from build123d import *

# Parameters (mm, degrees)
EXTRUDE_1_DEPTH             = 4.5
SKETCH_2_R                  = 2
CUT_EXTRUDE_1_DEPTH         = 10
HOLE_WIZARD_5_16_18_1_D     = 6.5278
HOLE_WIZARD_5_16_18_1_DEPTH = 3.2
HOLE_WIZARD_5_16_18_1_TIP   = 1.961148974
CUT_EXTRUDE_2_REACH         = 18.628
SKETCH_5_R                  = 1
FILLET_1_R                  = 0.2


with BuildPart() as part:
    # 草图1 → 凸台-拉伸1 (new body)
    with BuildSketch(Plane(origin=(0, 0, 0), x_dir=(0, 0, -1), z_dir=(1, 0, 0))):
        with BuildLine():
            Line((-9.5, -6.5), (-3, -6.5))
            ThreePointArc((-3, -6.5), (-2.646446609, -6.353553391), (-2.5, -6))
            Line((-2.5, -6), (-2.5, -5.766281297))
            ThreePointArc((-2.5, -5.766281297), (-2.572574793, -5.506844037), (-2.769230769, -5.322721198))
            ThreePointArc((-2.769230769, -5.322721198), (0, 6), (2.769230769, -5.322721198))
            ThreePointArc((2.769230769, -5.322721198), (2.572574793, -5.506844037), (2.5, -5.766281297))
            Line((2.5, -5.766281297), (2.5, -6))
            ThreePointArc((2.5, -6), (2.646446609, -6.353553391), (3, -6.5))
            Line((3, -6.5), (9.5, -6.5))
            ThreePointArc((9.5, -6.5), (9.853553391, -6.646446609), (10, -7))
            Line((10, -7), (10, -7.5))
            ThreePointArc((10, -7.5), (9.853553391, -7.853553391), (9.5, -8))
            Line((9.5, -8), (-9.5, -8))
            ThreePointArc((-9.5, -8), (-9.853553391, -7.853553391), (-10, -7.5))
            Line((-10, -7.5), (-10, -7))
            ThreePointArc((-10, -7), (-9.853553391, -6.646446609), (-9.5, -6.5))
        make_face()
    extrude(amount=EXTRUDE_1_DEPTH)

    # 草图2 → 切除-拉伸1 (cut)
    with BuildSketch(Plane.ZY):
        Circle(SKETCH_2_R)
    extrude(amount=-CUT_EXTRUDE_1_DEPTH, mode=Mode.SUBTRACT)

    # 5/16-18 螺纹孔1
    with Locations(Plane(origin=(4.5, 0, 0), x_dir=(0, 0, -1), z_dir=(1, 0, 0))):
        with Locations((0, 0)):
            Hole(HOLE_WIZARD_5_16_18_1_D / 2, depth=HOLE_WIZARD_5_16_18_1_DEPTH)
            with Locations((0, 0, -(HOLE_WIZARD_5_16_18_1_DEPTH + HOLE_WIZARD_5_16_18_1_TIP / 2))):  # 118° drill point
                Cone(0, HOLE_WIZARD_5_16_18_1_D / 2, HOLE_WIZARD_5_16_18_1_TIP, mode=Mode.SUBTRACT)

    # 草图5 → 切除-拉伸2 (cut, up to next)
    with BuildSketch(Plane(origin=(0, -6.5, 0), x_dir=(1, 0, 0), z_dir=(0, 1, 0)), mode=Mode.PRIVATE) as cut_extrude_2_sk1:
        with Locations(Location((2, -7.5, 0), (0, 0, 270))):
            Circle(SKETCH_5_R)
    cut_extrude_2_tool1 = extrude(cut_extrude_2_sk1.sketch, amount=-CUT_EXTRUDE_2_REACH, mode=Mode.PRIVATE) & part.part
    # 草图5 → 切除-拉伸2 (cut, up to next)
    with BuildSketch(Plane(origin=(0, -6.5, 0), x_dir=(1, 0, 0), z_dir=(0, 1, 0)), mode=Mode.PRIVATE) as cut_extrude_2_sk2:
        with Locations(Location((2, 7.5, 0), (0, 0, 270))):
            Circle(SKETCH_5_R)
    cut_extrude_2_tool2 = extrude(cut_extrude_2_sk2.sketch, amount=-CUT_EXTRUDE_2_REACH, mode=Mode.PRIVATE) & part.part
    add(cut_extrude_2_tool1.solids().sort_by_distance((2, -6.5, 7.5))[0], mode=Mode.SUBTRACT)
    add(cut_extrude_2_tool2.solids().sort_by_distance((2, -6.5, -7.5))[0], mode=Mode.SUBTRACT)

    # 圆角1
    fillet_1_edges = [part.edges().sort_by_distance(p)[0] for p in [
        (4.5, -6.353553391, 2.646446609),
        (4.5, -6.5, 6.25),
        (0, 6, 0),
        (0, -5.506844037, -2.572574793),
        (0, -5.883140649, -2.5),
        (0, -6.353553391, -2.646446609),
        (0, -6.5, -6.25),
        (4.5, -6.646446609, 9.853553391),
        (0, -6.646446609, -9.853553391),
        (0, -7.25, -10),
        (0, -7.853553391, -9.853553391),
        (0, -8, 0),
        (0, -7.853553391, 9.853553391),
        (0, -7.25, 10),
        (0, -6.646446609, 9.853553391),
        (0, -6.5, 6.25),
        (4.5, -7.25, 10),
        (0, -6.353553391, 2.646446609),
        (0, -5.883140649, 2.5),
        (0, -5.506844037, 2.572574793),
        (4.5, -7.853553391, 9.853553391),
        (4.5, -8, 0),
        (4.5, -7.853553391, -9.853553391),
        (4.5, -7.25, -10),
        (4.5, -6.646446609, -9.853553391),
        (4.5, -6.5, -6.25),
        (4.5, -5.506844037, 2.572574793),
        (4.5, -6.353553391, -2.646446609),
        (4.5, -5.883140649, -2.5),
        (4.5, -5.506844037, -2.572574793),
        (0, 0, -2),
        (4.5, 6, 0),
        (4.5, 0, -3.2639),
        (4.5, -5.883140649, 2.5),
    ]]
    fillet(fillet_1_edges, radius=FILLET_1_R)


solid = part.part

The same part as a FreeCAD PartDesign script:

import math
import FreeCAD as App
import Part
import Sketcher
Q = App.Units.Quantity


def edges_at(feature, points):
    """Names of the edges that pass closest to the given points."""
    edges = feature.Shape.Edges
    near = lambda p: min(range(len(edges)), key=lambda i: edges[i].distToShape(Part.Vertex(*p))[0])
    return sorted({f"Edge{near(p) + 1}" for p in points})

doc = App.newDocument("Part")
params = doc.addObject("Spreadsheet::Sheet", "Params")
for row, (alias, value) in enumerate([
    ("sketch1_radius", "6 mm"),
    ("sketch1_radius2", "0.5 mm"),
    ("sketch1_height", "19 mm"),
    ("sketch1_width", "0.5 mm"),
    ("sketch1_height2", "6.5 mm"),
    ("pad1_length", "4.5 mm"),
    ("sketch2_diameter", "4 mm"),
    ("pocket1_length", "10 mm"),
    ("hole_diameter", "6.5278 mm"),
    ("hole_depth", "3.2 mm"),
    ("sketch4_diameter", "2 mm"),
    ("sketch5_diameter", "2 mm"),
    ("fillet_radius", "0.2 mm"),
], start=1):
    params.set(f"A{row}", alias)
    params.set(f"B{row}", "=" + value)
    params.setAlias(f"B{row}", alias)

body = doc.addObject("PartDesign::Body", "Body")

sketch1 = doc.addObject("Sketcher::SketchObject", "Sketch")
body.addObject(sketch1)
sketch1.AttachmentSupport = (doc.YZ_Plane, [""])
sketch1.MapMode = "FlatFace"
sketch1.addGeometry([
    Part.LineSegment(App.Vector(-6.5, 3, 0), App.Vector(-6.5, 9.5, 0)),
    Part.ArcOfCircle(Part.Circle(App.Vector(-7, 9.5, 0), App.Vector(0, 0, 1), 0.5), math.radians(0), math.radians(90)),
    Part.LineSegment(App.Vector(-7, 10, 0), App.Vector(-7.5, 10, 0)),
    Part.ArcOfCircle(Part.Circle(App.Vector(-7.5, 9.5, 0), App.Vector(0, 0, 1), 0.5), math.radians(90), math.radians(180)),
    Part.LineSegment(App.Vector(-8, 9.5, 0), App.Vector(-8, -9.5, 0)),
    Part.ArcOfCircle(Part.Circle(App.Vector(-7.5, -9.5, 0), App.Vector(0, 0, 1), 0.5), math.radians(180), math.radians(270)),
    Part.LineSegment(App.Vector(-7.5, -10, 0), App.Vector(-7, -10, 0)),
    Part.ArcOfCircle(Part.Circle(App.Vector(-7, -9.5, 0), App.Vector(0, 0, 1), 0.5), math.radians(-90), math.radians(0)),
    Part.LineSegment(App.Vector(-6.5, -9.5, 0), App.Vector(-6.5, -3, 0)),
    Part.ArcOfCircle(Part.Circle(App.Vector(-6, -3, 0), App.Vector(0, 0, 1), 0.5), math.radians(90), math.radians(180)),
    Part.LineSegment(App.Vector(-6, -2.5, 0), App.Vector(-5.766281, -2.5, 0)),
    Part.ArcOfCircle(Part.Circle(App.Vector(-5.766281, -3, 0), App.Vector(0, 0, 1), 0.5), math.radians(27.486426), math.radians(90)),
    Part.ArcOfCircle(Part.Circle(App.Vector(0, 0, 0), App.Vector(0, 0, 1), 6), math.radians(-152.513574), math.radians(152.513574)),
    Part.ArcOfCircle(Part.Circle(App.Vector(-5.766281, 3, 0), App.Vector(0, 0, 1), 0.5), math.radians(-90), math.radians(-27.486426)),
    Part.LineSegment(App.Vector(-5.766281, 2.5, 0), App.Vector(-6, 2.5, 0)),
    Part.ArcOfCircle(Part.Circle(App.Vector(-6, 3, 0), App.Vector(0, 0, 1), 0.5), math.radians(180), math.radians(270)),
], False)
sketch1.addConstraint([
    Sketcher.Constraint("Tangent", 0, 2, 1, 1),
    Sketcher.Constraint("Tangent", 1, 2, 2, 1),
    Sketcher.Constraint("Tangent", 2, 2, 3, 1),
    Sketcher.Constraint("Tangent", 3, 2, 4, 1),
    Sketcher.Constraint("Tangent", 4, 2, 5, 1),
    Sketcher.Constraint("Tangent", 5, 2, 6, 1),
    Sketcher.Constraint("Tangent", 6, 2, 7, 1),
    Sketcher.Constraint("Tangent", 7, 2, 8, 1),
    Sketcher.Constraint("Tangent", 8, 2, 9, 2),
    Sketcher.Constraint("Tangent", 9, 1, 10, 1),
    Sketcher.Constraint("Tangent", 10, 2, 11, 2),
    Sketcher.Constraint("Tangent", 11, 1, 12, 1),
    Sketcher.Constraint("Tangent", 12, 2, 13, 2),
    Sketcher.Constraint("Tangent", 13, 1, 14, 1),
    Sketcher.Constraint("Tangent", 14, 2, 15, 2),
    Sketcher.Constraint("Tangent", 15, 1, 0, 1),
    Sketcher.Constraint("Vertical", 0),
    Sketcher.Constraint("Horizontal", 2),
    Sketcher.Constraint("Vertical", 4),
    Sketcher.Constraint("Horizontal", 6),
    Sketcher.Constraint("Vertical", 8),
    Sketcher.Constraint("Horizontal", 10),
    Sketcher.Constraint("Horizontal", 14),
    Sketcher.Constraint("Coincident", 12, 3, -1, 1),
    Sketcher.Constraint("Equal", 1, 3),
    Sketcher.Constraint("Equal", 3, 5),
    Sketcher.Constraint("Equal", 5, 7),
    Sketcher.Constraint("Equal", 7, 9),
    Sketcher.Constraint("Equal", 9, 11),
    Sketcher.Constraint("Equal", 11, 13),
    Sketcher.Constraint("Equal", 13, 15),
    Sketcher.Constraint("Symmetric", 1, 3, 7, 3, -1),
    Sketcher.Constraint("Vertical", 11, 3, 13, 3),
    Sketcher.Constraint("Radius", 12, Q("6 mm")),
    Sketcher.Constraint("Radius", 1, Q("0.5 mm")),
    Sketcher.Constraint("DistanceY", 4, 2, 4, 1, Q("19 mm")),
    Sketcher.Constraint("DistanceX", 2, 2, 2, 1, Q("0.5 mm")),
    Sketcher.Constraint("DistanceY", 0, 1, 0, 2, Q("6.5 mm")),
    Sketcher.Constraint("DistanceX", 1, 3, -1, 1, Q("7 mm")),
])
sketch1.setExpression("Constraints[33]", "Params.sketch1_radius")
sketch1.setExpression("Constraints[34]", "Params.sketch1_radius2")
sketch1.setExpression("Constraints[35]", "Params.sketch1_height")
sketch1.setExpression("Constraints[36]", "Params.sketch1_width")
sketch1.setExpression("Constraints[37]", "Params.sketch1_height2")
pad1 = doc.addObject("PartDesign::Pad", "Pad")
body.addObject(pad1)
pad1.Profile = sketch1
pad1.setExpression("Length", "Params.pad1_length")

sketch2 = doc.addObject("Sketcher::SketchObject", "Sketch001")
body.addObject(sketch2)
sketch2.AttachmentSupport = (doc.YZ_Plane, [""])
sketch2.MapMode = "FlatFace"
sketch2.addGeometry(Part.Circle(App.Vector(0, 0, 0), App.Vector(0, 0, 1), 2), False)
sketch2.addConstraint([
    Sketcher.Constraint("Coincident", 0, 3, -1, 1),
    Sketcher.Constraint("Diameter", 0, Q("4 mm")),
])
sketch2.setExpression("Constraints[1]", "Params.sketch2_diameter")
pocket1 = doc.addObject("PartDesign::Pocket", "Pocket")
body.addObject(pocket1)
pocket1.Profile = sketch2
pocket1.setExpression("Length", "Params.pocket1_length")
pocket1.Reversed = True

sketch3 = doc.addObject("Sketcher::SketchObject", "Sketch002")
body.addObject(sketch3)
sketch3.AttachmentSupport = (doc.YZ_Plane, [""])
sketch3.MapMode = "FlatFace"
sketch3.AttachmentOffset = App.Placement(App.Vector(0, 0, 4.5), App.Rotation())
sketch3.addGeometry(Part.Circle(App.Vector(0, 0, 0), App.Vector(0, 0, 1), 3.2639), False)
sketch3.addConstraint([
    Sketcher.Constraint("Coincident", 0, 3, -1, 1),
    Sketcher.Constraint("Diameter", 0, Q("6.5278 mm")),
])
doc.recompute()
hole = doc.addObject("PartDesign::Hole", "Hole")
body.addObject(hole)
hole.Profile = sketch3
hole.ThreadType = "None"
hole.setExpression("Diameter", "Params.hole_diameter")
hole.DepthType = "Dimension"
hole.setExpression("Depth", "Params.hole_depth")
hole.DrillPoint = "Angled"
hole.DrillPointAngle = 118

sketch4 = doc.addObject("Sketcher::SketchObject", "Sketch003")
body.addObject(sketch4)
sketch4.AttachmentSupport = (doc.XZ_Plane, [""])
sketch4.MapMode = "FlatFace"
sketch4.AttachmentOffset = App.Placement(App.Vector(0, 0, 6.5), App.Rotation())
sketch4.addGeometry(Part.Circle(App.Vector(2, 7.5, 0), App.Vector(0, 0, 1), 1), False)
sketch4.addConstraint([
    Sketcher.Constraint("Diameter", 0, Q("2 mm")),
    Sketcher.Constraint("DistanceX", -1, 1, 0, 3, Q("2 mm")),
    Sketcher.Constraint("DistanceY", -1, 1, 0, 3, Q("7.5 mm")),
])
sketch4.setExpression("Constraints[0]", "Params.sketch4_diameter")
pocket2 = doc.addObject("PartDesign::Pocket", "Pocket001")
body.addObject(pocket2)
pocket2.Profile = sketch4
pocket2.Type = "UpToFirst"
pocket2.Reversed = True

sketch5 = doc.addObject("Sketcher::SketchObject", "Sketch004")
body.addObject(sketch5)
sketch5.AttachmentSupport = (doc.XZ_Plane, [""])
sketch5.MapMode = "FlatFace"
sketch5.AttachmentOffset = App.Placement(App.Vector(0, 0, 6.5), App.Rotation())
sketch5.addGeometry(Part.Circle(App.Vector(2, -7.5, 0), App.Vector(0, 0, 1), 1), False)
sketch5.addConstraint([
    Sketcher.Constraint("Diameter", 0, Q("2 mm")),
    Sketcher.Constraint("DistanceX", -1, 1, 0, 3, Q("2 mm")),
    Sketcher.Constraint("DistanceY", 0, 3, -1, 1, Q("7.5 mm")),
])
sketch5.setExpression("Constraints[0]", "Params.sketch5_diameter")
pocket3 = doc.addObject("PartDesign::Pocket", "Pocket002")
body.addObject(pocket3)
pocket3.Profile = sketch5
pocket3.Type = "UpToFirst"
pocket3.Reversed = True
doc.recompute()

fillet = doc.addObject("PartDesign::Fillet", "Fillet")
body.addObject(fillet)
fillet.Base = (pocket3, edges_at(pocket3, [
    (4.5, -6.354, 2.646),
    (4.5, -6.5, 6.25),
    (0, 6, 0),
    (0, -5.507, -2.573),
    (0, -5.883, -2.5),
    (0, -6.354, -2.646),
    (0, -6.5, -6.25),
    (4.5, -6.646, 9.854),
    (0, -6.646, -9.854),
    (0, -7.25, -10),
    (0, -7.854, -9.854),
    (0, -8, 0),
    (0, -7.854, 9.854),
    (0, -7.25, 10),
    (0, -6.646, 9.854),
    (0, -6.5, 6.25),
    (4.5, -7.25, 10),
    (0, -6.354, 2.646),
    (0, -5.883, 2.5),
    (0, -5.507, 2.573),
    (4.5, -7.854, 9.854),
    (4.5, -8, 0),
    (4.5, -7.854, -9.854),
    (4.5, -7.25, -10),
    (4.5, -6.646, -9.854),
    (4.5, -6.5, -6.25),
    (4.5, -5.507, 2.573),
    (4.5, -6.354, -2.646),
    (4.5, -5.883, -2.5),
    (4.5, -5.507, -2.573),
    (0, 0, -2),
    (4.5, 6, 0),
    (4.5, 0, -3.264),
    (4.5, -5.883, 2.5),
]))
fillet.setExpression("Radius", "Params.fillet_radius")

doc.recompute()
